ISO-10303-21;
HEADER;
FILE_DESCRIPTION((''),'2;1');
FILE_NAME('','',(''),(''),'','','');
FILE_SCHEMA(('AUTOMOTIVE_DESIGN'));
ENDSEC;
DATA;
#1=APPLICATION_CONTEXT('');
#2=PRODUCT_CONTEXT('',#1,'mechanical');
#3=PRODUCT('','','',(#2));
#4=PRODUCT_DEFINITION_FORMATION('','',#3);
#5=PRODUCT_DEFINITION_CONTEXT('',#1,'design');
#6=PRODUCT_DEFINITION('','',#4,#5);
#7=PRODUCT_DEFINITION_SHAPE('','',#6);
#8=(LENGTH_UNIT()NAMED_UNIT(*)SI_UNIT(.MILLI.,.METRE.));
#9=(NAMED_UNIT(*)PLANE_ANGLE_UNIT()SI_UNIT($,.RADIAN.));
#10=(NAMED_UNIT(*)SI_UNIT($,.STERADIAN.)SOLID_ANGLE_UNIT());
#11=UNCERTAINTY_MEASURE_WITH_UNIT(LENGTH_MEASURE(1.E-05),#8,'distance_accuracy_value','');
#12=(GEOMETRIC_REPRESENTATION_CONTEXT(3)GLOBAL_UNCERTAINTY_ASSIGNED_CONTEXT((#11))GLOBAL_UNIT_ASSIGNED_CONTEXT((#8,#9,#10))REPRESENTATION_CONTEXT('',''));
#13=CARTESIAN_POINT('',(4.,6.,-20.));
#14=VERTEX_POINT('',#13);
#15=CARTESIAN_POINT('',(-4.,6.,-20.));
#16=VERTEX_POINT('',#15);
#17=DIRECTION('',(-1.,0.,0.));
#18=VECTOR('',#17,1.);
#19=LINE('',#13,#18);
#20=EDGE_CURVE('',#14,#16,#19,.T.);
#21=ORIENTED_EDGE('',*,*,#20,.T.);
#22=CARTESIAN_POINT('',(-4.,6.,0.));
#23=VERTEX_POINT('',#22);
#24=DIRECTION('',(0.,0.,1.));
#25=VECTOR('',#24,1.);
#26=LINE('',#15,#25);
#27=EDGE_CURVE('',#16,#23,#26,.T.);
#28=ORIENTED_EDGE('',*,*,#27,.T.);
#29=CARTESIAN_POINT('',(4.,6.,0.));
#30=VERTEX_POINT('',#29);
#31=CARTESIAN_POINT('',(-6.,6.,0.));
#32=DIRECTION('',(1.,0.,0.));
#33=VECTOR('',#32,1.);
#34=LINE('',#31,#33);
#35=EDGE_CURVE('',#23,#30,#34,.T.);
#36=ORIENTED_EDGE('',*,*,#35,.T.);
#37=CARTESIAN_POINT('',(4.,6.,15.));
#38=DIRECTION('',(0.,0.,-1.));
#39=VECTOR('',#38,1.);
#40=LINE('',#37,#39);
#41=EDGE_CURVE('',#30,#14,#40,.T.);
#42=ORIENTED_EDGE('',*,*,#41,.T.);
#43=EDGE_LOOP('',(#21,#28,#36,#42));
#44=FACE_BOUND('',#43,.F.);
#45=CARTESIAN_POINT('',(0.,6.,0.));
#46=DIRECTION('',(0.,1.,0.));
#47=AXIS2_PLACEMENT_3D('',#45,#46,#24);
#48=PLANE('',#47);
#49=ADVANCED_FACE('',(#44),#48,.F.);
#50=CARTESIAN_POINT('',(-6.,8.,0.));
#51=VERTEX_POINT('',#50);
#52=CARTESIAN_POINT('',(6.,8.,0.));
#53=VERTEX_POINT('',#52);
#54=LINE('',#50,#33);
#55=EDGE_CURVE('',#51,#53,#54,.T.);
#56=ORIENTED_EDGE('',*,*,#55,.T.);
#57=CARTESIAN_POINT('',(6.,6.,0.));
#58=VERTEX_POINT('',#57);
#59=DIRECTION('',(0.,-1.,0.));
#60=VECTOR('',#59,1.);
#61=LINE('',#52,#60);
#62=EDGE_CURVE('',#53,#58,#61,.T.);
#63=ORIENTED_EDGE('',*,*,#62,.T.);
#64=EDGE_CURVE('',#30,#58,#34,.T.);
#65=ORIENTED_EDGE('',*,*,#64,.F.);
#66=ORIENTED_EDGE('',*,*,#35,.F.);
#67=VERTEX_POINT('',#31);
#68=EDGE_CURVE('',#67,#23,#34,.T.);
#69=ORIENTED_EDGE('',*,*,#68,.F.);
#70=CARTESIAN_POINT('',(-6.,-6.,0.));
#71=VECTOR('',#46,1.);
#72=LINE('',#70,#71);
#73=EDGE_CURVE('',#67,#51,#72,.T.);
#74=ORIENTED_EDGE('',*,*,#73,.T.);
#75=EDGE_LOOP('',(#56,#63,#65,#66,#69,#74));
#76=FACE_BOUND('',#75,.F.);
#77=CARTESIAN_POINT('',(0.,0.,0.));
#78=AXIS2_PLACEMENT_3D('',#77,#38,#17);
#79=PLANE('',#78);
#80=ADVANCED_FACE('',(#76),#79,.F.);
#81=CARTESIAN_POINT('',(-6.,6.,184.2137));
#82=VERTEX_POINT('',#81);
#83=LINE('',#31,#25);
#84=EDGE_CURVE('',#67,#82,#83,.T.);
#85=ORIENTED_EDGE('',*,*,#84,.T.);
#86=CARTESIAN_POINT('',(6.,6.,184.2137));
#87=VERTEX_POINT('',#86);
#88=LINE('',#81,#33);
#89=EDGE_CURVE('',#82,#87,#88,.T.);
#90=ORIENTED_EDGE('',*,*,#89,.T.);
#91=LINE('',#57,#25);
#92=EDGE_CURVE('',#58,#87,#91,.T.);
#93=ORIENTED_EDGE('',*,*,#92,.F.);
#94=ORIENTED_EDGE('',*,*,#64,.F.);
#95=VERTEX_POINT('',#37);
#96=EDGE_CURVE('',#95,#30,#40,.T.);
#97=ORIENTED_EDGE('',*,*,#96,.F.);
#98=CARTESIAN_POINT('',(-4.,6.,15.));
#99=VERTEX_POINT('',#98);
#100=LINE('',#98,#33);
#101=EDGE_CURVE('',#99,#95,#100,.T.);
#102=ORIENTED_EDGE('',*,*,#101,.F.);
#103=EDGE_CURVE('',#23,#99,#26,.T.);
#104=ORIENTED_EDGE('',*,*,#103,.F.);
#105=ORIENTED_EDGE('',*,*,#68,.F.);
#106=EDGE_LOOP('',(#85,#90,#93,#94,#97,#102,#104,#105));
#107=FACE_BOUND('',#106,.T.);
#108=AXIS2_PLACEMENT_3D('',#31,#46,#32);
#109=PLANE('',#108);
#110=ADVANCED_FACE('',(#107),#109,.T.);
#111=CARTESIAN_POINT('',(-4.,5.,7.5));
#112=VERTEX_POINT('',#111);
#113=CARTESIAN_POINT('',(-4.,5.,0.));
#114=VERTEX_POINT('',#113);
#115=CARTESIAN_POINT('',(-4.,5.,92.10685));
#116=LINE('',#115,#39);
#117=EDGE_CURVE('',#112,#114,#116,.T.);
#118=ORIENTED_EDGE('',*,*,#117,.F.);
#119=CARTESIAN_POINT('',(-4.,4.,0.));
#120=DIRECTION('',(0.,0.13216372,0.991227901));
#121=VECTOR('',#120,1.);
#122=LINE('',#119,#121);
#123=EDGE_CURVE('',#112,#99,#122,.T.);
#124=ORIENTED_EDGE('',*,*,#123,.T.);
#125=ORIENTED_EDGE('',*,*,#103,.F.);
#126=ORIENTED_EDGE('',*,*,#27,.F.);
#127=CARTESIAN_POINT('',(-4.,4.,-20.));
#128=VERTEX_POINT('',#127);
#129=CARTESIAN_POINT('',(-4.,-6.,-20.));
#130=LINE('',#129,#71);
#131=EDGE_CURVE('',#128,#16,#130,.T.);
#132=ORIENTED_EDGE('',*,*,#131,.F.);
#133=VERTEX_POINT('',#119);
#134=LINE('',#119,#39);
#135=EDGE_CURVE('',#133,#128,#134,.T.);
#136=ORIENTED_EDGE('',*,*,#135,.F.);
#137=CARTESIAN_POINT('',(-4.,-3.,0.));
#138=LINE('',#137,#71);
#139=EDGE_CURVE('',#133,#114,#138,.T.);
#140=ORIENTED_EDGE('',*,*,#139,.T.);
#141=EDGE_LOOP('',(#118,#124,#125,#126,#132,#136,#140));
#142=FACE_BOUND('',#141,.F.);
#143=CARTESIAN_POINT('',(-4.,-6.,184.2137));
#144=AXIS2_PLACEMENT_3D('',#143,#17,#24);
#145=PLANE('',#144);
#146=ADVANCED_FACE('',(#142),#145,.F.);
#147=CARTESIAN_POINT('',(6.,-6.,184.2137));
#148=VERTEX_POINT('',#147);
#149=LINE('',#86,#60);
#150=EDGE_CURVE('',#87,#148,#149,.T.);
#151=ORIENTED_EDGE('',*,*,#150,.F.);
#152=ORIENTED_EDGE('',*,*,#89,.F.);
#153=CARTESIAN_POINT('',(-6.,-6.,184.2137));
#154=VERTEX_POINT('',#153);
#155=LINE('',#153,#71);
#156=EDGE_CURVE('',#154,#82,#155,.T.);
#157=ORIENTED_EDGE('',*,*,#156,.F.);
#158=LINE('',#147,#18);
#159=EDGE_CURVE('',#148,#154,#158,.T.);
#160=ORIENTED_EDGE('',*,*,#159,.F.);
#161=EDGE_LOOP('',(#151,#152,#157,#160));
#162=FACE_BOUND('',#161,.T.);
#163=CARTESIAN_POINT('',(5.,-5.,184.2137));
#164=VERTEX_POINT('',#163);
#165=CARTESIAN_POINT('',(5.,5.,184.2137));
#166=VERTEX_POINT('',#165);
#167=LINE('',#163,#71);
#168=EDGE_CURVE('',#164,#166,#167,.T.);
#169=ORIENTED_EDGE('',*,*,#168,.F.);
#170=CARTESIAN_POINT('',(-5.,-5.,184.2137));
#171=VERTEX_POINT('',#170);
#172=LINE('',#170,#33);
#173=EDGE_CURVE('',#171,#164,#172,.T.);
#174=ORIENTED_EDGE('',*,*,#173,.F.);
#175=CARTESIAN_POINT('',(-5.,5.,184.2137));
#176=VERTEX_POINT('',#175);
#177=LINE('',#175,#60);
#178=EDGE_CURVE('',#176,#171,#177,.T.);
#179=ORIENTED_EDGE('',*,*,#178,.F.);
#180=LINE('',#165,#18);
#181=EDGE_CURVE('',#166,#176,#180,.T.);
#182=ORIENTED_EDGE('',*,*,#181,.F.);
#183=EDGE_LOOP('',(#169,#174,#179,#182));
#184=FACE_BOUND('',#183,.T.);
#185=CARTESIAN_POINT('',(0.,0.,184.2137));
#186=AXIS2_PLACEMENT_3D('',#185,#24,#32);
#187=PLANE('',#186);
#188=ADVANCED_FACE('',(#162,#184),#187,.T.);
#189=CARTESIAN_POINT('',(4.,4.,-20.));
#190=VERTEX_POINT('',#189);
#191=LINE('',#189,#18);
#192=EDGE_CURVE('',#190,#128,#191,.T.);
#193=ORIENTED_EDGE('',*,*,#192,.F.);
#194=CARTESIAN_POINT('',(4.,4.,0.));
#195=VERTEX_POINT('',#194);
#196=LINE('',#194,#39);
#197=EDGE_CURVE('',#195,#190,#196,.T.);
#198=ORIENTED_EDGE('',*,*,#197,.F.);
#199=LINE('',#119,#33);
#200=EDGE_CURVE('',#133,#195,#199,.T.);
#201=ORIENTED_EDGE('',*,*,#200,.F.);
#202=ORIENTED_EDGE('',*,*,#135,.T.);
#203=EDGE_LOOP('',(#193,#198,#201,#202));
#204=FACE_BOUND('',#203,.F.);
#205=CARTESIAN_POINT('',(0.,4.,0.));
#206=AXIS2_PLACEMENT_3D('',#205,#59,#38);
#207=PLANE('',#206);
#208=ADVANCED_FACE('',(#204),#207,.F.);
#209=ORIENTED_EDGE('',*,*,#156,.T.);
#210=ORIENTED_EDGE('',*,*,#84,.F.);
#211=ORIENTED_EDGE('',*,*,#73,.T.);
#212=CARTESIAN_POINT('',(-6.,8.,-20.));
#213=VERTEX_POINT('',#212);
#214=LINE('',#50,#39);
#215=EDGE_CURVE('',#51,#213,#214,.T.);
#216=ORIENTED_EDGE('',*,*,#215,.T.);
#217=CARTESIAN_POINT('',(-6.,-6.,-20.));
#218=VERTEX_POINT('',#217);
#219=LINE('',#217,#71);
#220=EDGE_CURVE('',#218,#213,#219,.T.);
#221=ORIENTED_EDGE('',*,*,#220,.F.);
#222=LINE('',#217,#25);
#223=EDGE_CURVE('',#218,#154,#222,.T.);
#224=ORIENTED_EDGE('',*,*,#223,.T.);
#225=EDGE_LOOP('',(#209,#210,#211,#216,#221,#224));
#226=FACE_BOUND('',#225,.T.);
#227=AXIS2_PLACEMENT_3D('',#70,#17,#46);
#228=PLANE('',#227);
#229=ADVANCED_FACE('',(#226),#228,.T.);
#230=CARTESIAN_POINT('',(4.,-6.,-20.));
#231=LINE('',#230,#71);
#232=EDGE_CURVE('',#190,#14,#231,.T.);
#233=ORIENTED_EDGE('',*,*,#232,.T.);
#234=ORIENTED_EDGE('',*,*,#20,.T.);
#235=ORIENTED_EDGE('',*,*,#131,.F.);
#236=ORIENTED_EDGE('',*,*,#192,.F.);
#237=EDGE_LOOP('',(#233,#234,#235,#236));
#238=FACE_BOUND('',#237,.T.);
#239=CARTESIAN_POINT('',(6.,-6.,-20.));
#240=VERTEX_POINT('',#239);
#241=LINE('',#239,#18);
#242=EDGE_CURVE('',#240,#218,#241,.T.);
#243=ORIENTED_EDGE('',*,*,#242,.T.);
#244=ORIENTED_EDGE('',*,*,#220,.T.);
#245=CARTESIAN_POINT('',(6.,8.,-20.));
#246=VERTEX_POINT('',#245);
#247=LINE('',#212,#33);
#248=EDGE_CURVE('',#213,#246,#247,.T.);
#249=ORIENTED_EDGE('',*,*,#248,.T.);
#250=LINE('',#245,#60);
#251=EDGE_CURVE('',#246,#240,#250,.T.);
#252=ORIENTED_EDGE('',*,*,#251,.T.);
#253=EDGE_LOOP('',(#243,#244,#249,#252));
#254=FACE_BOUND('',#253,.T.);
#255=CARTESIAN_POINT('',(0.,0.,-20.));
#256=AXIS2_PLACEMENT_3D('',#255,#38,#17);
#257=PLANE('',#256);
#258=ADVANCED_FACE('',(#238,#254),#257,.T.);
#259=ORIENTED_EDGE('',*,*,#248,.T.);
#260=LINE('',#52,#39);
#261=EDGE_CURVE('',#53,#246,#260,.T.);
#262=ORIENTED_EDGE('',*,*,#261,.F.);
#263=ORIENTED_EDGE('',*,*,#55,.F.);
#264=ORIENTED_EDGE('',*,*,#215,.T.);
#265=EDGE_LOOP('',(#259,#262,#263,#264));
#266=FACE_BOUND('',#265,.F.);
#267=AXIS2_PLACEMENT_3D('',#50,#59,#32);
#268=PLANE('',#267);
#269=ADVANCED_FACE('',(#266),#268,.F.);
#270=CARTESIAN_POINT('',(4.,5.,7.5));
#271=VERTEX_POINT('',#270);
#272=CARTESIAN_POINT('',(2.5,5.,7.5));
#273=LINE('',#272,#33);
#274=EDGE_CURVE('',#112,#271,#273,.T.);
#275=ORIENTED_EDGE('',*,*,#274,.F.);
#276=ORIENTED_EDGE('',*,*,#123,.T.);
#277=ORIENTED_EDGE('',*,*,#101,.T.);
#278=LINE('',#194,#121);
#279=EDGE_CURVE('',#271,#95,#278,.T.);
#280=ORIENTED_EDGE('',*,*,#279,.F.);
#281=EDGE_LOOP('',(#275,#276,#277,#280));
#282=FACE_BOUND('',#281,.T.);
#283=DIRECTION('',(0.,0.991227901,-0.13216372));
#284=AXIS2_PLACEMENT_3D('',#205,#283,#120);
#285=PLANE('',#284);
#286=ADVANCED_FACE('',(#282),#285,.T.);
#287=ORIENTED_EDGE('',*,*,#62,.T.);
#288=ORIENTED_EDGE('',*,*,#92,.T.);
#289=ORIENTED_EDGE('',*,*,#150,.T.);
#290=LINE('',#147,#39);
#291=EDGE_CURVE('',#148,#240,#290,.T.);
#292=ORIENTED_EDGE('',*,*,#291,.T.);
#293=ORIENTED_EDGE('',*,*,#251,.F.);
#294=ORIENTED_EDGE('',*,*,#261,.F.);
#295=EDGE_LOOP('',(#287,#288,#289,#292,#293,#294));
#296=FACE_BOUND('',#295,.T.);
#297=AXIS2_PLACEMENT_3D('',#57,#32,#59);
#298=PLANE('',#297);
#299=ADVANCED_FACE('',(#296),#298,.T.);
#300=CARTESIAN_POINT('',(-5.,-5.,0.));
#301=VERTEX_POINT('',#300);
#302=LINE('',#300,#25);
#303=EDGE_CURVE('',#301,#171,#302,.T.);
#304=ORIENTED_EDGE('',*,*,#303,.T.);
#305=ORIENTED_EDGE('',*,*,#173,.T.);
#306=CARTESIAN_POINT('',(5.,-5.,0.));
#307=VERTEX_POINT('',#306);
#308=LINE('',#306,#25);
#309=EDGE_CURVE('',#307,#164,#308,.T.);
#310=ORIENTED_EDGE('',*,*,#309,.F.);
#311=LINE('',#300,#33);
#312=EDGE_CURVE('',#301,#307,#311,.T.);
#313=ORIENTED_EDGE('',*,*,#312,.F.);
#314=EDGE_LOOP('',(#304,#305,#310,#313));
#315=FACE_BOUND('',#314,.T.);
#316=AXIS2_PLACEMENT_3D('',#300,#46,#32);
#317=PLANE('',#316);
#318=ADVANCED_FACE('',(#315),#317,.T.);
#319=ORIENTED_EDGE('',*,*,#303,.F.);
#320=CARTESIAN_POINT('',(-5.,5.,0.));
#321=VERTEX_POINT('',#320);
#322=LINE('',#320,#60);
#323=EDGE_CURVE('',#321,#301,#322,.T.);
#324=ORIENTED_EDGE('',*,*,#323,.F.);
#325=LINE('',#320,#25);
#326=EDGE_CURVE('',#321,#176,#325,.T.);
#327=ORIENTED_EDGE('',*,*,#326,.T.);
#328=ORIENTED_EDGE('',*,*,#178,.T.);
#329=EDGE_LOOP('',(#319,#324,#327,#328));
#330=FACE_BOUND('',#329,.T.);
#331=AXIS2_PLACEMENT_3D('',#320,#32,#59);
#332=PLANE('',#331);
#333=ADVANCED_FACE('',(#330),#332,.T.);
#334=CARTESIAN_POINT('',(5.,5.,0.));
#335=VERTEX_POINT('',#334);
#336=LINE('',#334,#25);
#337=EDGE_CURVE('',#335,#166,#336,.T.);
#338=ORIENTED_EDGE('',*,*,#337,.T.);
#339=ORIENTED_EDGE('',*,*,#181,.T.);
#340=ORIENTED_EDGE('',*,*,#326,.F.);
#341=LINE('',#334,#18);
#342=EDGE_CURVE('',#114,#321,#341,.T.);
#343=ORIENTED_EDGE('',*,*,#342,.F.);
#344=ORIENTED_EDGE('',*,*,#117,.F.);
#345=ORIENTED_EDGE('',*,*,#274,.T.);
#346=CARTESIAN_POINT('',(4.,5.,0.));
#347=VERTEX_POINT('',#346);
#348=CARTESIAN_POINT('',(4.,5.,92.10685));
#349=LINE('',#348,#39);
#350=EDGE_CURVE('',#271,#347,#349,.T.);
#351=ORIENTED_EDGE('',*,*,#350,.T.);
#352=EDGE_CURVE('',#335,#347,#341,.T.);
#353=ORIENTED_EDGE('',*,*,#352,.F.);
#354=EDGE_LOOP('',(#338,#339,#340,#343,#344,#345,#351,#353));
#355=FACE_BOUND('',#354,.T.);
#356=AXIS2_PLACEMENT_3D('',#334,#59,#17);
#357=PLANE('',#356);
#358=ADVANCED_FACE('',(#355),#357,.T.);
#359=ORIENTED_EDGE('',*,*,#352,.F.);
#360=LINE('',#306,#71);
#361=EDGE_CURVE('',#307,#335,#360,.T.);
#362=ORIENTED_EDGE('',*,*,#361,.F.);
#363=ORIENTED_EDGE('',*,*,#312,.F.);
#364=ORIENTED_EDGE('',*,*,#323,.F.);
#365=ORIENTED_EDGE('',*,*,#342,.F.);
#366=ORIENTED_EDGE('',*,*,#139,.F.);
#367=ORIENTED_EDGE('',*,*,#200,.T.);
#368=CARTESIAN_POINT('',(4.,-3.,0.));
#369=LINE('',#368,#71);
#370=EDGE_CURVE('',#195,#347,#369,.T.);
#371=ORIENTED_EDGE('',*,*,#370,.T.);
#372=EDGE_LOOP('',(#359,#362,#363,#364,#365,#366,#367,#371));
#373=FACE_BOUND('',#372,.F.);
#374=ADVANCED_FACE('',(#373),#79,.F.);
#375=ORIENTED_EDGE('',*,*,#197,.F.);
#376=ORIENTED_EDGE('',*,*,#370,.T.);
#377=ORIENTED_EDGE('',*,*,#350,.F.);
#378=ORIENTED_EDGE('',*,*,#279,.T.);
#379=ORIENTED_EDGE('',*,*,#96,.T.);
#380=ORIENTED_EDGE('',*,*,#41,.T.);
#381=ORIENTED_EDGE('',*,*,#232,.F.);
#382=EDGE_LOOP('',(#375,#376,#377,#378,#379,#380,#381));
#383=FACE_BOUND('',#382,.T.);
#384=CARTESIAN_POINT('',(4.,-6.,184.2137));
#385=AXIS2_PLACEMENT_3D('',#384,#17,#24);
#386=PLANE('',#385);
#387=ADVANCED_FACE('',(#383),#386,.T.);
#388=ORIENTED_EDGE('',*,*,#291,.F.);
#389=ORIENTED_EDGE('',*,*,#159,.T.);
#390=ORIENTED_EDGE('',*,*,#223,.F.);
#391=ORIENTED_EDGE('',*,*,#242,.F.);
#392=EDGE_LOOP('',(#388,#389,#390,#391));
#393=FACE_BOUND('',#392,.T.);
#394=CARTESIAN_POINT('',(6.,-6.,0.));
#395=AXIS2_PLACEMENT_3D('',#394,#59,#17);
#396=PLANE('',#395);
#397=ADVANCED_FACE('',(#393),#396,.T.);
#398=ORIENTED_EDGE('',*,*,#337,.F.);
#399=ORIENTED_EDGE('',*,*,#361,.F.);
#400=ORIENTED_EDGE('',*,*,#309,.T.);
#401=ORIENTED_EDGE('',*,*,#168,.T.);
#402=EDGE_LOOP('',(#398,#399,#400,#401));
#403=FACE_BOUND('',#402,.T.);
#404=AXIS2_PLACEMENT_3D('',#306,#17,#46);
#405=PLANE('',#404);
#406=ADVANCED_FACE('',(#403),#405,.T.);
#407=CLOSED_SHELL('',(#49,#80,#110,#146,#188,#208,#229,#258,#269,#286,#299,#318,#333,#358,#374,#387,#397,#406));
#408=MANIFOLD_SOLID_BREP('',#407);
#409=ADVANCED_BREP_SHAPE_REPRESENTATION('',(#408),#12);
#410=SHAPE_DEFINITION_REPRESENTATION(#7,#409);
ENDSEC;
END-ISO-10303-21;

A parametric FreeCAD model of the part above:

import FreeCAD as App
import Part
import Sketcher

V = App.Vector

doc = App.newDocument("Part")
body = doc.addObject("PartDesign::Body", "Body")

# Sketch on XY plane
sketch1 = body.newObject("Sketcher::SketchObject", "Sketch")
sketch1.AttachmentSupport = (doc.getObject("XY_Plane"), [""])
sketch1.MapMode = "FlatFace"
sketch1.addGeometry([
    Part.LineSegment(V(6, 6, 0), V(-6, 6, 0)),  # 0
    Part.LineSegment(V(-6, 6, 0), V(-6, -6, 0)),  # 1
    Part.LineSegment(V(-6, -6, 0), V(6, -6, 0)),  # 2
    Part.LineSegment(V(6, -6, 0), V(6, 6, 0)),  # 3
    Part.LineSegment(V(5, -5, 0), V(-5, -5, 0)),  # 4
    Part.LineSegment(V(-5, -5, 0), V(-5, 5, 0)),  # 5
    Part.LineSegment(V(-5, 5, 0), V(5, 5, 0)),  # 6
    Part.LineSegment(V(5, 5, 0), V(5, -5, 0)),  # 7
], False)
sketch1.addConstraint([
    Sketcher.Constraint("Coincident", 0, 2, 1, 1),
    Sketcher.Constraint("Coincident", 1, 2, 2, 1),
    Sketcher.Constraint("Coincident", 2, 2, 3, 1),
    Sketcher.Constraint("Coincident", 3, 2, 0, 1),
    Sketcher.Constraint("Coincident", 4, 2, 5, 1),
    Sketcher.Constraint("Coincident", 5, 2, 6, 1),
    Sketcher.Constraint("Coincident", 6, 2, 7, 1),
    Sketcher.Constraint("Coincident", 7, 2, 4, 1),
    Sketcher.Constraint("Horizontal", 0),
    Sketcher.Constraint("Vertical", 1),
    Sketcher.Constraint("Horizontal", 2),
    Sketcher.Constraint("Vertical", 3),
    Sketcher.Constraint("Horizontal", 4),
    Sketcher.Constraint("Vertical", 5),
    Sketcher.Constraint("Horizontal", 6),
    Sketcher.Constraint("Vertical", 7),
    Sketcher.Constraint("Symmetric", 0, 2, 2, 2, -1, 1),
    Sketcher.Constraint("Symmetric", 4, 2, 6, 2, -1, 1),
    Sketcher.Constraint("Equal", 2, 1),
    Sketcher.Constraint("Equal", 6, 5),
    Sketcher.Constraint("DistanceX", 4, 2, 4, 1, 10.0),
    Sketcher.Constraint("DistanceX", 1, 2, 4, 2, 1.0),
])
pad1 = body.newObject("PartDesign::Pad", "Pad")
pad1.Profile = sketch1
pad1.Length = 184.2137

# Sketch on XY plane
sketch2 = body.newObject("Sketcher::SketchObject", "Sketch001")
sketch2.AttachmentSupport = (doc.getObject("XY_Plane"), [""])
sketch2.MapMode = "FlatFace"
sketch2.addGeometry([
    Part.LineSegment(V(6, 8, 0), V(6, -6, 0)),
    Part.LineSegment(V(6, -6, 0), V(-6, -6, 0)),
    Part.LineSegment(V(-6, -6, 0), V(-6, 8, 0)),
    Part.LineSegment(V(-6, 8, 0), V(6, 8, 0)),
], False)
sketch2.addConstraint([
    Sketcher.Constraint("Coincident", 0, 2, 1, 1),
    Sketcher.Constraint("Coincident", 1, 2, 2, 1),
    Sketcher.Constraint("Coincident", 2, 2, 3, 1),
    Sketcher.Constraint("Coincident", 3, 2, 0, 1),
    Sketcher.Constraint("Vertical", 0),
    Sketcher.Constraint("Horizontal", 1),
    Sketcher.Constraint("Vertical", 2),
    Sketcher.Constraint("Horizontal", 3),
    Sketcher.Constraint("DistanceY", 0, 2, 0, 1, 14.0),
    Sketcher.Constraint("DistanceX", 1, 2, 1, 1, 12.0),
    Sketcher.Constraint("DistanceX", -1, 1, 0, 2, 6.0),
    Sketcher.Constraint("DistanceY", 0, 2, -1, 1, 6.0),
])
pad2 = body.newObject("PartDesign::Pad", "Pad001")
pad2.Profile = sketch2
pad2.Length = 20
pad2.Reversed = True

# Sketch on YZ plane
sketch3 = body.newObject("Sketcher::SketchObject", "Sketch002")
sketch3.AttachmentSupport = (doc.getObject("YZ_Plane"), [""])
sketch3.MapMode = "FlatFace"
sketch3.addGeometry([
    Part.LineSegment(V(6, 15, 0), V(6, -20, 0)),
    Part.LineSegment(V(6, -20, 0), V(4, -20, 0)),
    Part.LineSegment(V(4, -20, 0), V(4, 0, 0)),
    Part.LineSegment(V(4, 0, 0), V(6, 15, 0)),
], False)
sketch3.addConstraint([
    Sketcher.Constraint("Coincident", 0, 2, 1, 1),
    Sketcher.Constraint("Coincident", 1, 2, 2, 1),
    Sketcher.Constraint("Coincident", 2, 2, 3, 1),
    Sketcher.Constraint("Coincident", 3, 2, 0, 1),
    Sketcher.Constraint("Vertical", 0),
    Sketcher.Constraint("Horizontal", 1),
    Sketcher.Constraint("Vertical", 2),
    Sketcher.Constraint("PointOnObject", 2, 2, -1),
    Sketcher.Constraint("DistanceX", 1, 2, 1, 1, 2.0),
    Sketcher.Constraint("DistanceY", -1, 1, 3, 2, 15.0),
    Sketcher.Constraint("DistanceY", 0, 2, 0, 1, 35.0),
    Sketcher.Constraint("DistanceX", -1, 1, 0, 2, 6.0),
])
pocket1 = body.newObject("PartDesign::Pocket", "Pocket")
pocket1.Profile = sketch3
pocket1.Length = 8
pocket1.Midplane = True

doc.recompute()
